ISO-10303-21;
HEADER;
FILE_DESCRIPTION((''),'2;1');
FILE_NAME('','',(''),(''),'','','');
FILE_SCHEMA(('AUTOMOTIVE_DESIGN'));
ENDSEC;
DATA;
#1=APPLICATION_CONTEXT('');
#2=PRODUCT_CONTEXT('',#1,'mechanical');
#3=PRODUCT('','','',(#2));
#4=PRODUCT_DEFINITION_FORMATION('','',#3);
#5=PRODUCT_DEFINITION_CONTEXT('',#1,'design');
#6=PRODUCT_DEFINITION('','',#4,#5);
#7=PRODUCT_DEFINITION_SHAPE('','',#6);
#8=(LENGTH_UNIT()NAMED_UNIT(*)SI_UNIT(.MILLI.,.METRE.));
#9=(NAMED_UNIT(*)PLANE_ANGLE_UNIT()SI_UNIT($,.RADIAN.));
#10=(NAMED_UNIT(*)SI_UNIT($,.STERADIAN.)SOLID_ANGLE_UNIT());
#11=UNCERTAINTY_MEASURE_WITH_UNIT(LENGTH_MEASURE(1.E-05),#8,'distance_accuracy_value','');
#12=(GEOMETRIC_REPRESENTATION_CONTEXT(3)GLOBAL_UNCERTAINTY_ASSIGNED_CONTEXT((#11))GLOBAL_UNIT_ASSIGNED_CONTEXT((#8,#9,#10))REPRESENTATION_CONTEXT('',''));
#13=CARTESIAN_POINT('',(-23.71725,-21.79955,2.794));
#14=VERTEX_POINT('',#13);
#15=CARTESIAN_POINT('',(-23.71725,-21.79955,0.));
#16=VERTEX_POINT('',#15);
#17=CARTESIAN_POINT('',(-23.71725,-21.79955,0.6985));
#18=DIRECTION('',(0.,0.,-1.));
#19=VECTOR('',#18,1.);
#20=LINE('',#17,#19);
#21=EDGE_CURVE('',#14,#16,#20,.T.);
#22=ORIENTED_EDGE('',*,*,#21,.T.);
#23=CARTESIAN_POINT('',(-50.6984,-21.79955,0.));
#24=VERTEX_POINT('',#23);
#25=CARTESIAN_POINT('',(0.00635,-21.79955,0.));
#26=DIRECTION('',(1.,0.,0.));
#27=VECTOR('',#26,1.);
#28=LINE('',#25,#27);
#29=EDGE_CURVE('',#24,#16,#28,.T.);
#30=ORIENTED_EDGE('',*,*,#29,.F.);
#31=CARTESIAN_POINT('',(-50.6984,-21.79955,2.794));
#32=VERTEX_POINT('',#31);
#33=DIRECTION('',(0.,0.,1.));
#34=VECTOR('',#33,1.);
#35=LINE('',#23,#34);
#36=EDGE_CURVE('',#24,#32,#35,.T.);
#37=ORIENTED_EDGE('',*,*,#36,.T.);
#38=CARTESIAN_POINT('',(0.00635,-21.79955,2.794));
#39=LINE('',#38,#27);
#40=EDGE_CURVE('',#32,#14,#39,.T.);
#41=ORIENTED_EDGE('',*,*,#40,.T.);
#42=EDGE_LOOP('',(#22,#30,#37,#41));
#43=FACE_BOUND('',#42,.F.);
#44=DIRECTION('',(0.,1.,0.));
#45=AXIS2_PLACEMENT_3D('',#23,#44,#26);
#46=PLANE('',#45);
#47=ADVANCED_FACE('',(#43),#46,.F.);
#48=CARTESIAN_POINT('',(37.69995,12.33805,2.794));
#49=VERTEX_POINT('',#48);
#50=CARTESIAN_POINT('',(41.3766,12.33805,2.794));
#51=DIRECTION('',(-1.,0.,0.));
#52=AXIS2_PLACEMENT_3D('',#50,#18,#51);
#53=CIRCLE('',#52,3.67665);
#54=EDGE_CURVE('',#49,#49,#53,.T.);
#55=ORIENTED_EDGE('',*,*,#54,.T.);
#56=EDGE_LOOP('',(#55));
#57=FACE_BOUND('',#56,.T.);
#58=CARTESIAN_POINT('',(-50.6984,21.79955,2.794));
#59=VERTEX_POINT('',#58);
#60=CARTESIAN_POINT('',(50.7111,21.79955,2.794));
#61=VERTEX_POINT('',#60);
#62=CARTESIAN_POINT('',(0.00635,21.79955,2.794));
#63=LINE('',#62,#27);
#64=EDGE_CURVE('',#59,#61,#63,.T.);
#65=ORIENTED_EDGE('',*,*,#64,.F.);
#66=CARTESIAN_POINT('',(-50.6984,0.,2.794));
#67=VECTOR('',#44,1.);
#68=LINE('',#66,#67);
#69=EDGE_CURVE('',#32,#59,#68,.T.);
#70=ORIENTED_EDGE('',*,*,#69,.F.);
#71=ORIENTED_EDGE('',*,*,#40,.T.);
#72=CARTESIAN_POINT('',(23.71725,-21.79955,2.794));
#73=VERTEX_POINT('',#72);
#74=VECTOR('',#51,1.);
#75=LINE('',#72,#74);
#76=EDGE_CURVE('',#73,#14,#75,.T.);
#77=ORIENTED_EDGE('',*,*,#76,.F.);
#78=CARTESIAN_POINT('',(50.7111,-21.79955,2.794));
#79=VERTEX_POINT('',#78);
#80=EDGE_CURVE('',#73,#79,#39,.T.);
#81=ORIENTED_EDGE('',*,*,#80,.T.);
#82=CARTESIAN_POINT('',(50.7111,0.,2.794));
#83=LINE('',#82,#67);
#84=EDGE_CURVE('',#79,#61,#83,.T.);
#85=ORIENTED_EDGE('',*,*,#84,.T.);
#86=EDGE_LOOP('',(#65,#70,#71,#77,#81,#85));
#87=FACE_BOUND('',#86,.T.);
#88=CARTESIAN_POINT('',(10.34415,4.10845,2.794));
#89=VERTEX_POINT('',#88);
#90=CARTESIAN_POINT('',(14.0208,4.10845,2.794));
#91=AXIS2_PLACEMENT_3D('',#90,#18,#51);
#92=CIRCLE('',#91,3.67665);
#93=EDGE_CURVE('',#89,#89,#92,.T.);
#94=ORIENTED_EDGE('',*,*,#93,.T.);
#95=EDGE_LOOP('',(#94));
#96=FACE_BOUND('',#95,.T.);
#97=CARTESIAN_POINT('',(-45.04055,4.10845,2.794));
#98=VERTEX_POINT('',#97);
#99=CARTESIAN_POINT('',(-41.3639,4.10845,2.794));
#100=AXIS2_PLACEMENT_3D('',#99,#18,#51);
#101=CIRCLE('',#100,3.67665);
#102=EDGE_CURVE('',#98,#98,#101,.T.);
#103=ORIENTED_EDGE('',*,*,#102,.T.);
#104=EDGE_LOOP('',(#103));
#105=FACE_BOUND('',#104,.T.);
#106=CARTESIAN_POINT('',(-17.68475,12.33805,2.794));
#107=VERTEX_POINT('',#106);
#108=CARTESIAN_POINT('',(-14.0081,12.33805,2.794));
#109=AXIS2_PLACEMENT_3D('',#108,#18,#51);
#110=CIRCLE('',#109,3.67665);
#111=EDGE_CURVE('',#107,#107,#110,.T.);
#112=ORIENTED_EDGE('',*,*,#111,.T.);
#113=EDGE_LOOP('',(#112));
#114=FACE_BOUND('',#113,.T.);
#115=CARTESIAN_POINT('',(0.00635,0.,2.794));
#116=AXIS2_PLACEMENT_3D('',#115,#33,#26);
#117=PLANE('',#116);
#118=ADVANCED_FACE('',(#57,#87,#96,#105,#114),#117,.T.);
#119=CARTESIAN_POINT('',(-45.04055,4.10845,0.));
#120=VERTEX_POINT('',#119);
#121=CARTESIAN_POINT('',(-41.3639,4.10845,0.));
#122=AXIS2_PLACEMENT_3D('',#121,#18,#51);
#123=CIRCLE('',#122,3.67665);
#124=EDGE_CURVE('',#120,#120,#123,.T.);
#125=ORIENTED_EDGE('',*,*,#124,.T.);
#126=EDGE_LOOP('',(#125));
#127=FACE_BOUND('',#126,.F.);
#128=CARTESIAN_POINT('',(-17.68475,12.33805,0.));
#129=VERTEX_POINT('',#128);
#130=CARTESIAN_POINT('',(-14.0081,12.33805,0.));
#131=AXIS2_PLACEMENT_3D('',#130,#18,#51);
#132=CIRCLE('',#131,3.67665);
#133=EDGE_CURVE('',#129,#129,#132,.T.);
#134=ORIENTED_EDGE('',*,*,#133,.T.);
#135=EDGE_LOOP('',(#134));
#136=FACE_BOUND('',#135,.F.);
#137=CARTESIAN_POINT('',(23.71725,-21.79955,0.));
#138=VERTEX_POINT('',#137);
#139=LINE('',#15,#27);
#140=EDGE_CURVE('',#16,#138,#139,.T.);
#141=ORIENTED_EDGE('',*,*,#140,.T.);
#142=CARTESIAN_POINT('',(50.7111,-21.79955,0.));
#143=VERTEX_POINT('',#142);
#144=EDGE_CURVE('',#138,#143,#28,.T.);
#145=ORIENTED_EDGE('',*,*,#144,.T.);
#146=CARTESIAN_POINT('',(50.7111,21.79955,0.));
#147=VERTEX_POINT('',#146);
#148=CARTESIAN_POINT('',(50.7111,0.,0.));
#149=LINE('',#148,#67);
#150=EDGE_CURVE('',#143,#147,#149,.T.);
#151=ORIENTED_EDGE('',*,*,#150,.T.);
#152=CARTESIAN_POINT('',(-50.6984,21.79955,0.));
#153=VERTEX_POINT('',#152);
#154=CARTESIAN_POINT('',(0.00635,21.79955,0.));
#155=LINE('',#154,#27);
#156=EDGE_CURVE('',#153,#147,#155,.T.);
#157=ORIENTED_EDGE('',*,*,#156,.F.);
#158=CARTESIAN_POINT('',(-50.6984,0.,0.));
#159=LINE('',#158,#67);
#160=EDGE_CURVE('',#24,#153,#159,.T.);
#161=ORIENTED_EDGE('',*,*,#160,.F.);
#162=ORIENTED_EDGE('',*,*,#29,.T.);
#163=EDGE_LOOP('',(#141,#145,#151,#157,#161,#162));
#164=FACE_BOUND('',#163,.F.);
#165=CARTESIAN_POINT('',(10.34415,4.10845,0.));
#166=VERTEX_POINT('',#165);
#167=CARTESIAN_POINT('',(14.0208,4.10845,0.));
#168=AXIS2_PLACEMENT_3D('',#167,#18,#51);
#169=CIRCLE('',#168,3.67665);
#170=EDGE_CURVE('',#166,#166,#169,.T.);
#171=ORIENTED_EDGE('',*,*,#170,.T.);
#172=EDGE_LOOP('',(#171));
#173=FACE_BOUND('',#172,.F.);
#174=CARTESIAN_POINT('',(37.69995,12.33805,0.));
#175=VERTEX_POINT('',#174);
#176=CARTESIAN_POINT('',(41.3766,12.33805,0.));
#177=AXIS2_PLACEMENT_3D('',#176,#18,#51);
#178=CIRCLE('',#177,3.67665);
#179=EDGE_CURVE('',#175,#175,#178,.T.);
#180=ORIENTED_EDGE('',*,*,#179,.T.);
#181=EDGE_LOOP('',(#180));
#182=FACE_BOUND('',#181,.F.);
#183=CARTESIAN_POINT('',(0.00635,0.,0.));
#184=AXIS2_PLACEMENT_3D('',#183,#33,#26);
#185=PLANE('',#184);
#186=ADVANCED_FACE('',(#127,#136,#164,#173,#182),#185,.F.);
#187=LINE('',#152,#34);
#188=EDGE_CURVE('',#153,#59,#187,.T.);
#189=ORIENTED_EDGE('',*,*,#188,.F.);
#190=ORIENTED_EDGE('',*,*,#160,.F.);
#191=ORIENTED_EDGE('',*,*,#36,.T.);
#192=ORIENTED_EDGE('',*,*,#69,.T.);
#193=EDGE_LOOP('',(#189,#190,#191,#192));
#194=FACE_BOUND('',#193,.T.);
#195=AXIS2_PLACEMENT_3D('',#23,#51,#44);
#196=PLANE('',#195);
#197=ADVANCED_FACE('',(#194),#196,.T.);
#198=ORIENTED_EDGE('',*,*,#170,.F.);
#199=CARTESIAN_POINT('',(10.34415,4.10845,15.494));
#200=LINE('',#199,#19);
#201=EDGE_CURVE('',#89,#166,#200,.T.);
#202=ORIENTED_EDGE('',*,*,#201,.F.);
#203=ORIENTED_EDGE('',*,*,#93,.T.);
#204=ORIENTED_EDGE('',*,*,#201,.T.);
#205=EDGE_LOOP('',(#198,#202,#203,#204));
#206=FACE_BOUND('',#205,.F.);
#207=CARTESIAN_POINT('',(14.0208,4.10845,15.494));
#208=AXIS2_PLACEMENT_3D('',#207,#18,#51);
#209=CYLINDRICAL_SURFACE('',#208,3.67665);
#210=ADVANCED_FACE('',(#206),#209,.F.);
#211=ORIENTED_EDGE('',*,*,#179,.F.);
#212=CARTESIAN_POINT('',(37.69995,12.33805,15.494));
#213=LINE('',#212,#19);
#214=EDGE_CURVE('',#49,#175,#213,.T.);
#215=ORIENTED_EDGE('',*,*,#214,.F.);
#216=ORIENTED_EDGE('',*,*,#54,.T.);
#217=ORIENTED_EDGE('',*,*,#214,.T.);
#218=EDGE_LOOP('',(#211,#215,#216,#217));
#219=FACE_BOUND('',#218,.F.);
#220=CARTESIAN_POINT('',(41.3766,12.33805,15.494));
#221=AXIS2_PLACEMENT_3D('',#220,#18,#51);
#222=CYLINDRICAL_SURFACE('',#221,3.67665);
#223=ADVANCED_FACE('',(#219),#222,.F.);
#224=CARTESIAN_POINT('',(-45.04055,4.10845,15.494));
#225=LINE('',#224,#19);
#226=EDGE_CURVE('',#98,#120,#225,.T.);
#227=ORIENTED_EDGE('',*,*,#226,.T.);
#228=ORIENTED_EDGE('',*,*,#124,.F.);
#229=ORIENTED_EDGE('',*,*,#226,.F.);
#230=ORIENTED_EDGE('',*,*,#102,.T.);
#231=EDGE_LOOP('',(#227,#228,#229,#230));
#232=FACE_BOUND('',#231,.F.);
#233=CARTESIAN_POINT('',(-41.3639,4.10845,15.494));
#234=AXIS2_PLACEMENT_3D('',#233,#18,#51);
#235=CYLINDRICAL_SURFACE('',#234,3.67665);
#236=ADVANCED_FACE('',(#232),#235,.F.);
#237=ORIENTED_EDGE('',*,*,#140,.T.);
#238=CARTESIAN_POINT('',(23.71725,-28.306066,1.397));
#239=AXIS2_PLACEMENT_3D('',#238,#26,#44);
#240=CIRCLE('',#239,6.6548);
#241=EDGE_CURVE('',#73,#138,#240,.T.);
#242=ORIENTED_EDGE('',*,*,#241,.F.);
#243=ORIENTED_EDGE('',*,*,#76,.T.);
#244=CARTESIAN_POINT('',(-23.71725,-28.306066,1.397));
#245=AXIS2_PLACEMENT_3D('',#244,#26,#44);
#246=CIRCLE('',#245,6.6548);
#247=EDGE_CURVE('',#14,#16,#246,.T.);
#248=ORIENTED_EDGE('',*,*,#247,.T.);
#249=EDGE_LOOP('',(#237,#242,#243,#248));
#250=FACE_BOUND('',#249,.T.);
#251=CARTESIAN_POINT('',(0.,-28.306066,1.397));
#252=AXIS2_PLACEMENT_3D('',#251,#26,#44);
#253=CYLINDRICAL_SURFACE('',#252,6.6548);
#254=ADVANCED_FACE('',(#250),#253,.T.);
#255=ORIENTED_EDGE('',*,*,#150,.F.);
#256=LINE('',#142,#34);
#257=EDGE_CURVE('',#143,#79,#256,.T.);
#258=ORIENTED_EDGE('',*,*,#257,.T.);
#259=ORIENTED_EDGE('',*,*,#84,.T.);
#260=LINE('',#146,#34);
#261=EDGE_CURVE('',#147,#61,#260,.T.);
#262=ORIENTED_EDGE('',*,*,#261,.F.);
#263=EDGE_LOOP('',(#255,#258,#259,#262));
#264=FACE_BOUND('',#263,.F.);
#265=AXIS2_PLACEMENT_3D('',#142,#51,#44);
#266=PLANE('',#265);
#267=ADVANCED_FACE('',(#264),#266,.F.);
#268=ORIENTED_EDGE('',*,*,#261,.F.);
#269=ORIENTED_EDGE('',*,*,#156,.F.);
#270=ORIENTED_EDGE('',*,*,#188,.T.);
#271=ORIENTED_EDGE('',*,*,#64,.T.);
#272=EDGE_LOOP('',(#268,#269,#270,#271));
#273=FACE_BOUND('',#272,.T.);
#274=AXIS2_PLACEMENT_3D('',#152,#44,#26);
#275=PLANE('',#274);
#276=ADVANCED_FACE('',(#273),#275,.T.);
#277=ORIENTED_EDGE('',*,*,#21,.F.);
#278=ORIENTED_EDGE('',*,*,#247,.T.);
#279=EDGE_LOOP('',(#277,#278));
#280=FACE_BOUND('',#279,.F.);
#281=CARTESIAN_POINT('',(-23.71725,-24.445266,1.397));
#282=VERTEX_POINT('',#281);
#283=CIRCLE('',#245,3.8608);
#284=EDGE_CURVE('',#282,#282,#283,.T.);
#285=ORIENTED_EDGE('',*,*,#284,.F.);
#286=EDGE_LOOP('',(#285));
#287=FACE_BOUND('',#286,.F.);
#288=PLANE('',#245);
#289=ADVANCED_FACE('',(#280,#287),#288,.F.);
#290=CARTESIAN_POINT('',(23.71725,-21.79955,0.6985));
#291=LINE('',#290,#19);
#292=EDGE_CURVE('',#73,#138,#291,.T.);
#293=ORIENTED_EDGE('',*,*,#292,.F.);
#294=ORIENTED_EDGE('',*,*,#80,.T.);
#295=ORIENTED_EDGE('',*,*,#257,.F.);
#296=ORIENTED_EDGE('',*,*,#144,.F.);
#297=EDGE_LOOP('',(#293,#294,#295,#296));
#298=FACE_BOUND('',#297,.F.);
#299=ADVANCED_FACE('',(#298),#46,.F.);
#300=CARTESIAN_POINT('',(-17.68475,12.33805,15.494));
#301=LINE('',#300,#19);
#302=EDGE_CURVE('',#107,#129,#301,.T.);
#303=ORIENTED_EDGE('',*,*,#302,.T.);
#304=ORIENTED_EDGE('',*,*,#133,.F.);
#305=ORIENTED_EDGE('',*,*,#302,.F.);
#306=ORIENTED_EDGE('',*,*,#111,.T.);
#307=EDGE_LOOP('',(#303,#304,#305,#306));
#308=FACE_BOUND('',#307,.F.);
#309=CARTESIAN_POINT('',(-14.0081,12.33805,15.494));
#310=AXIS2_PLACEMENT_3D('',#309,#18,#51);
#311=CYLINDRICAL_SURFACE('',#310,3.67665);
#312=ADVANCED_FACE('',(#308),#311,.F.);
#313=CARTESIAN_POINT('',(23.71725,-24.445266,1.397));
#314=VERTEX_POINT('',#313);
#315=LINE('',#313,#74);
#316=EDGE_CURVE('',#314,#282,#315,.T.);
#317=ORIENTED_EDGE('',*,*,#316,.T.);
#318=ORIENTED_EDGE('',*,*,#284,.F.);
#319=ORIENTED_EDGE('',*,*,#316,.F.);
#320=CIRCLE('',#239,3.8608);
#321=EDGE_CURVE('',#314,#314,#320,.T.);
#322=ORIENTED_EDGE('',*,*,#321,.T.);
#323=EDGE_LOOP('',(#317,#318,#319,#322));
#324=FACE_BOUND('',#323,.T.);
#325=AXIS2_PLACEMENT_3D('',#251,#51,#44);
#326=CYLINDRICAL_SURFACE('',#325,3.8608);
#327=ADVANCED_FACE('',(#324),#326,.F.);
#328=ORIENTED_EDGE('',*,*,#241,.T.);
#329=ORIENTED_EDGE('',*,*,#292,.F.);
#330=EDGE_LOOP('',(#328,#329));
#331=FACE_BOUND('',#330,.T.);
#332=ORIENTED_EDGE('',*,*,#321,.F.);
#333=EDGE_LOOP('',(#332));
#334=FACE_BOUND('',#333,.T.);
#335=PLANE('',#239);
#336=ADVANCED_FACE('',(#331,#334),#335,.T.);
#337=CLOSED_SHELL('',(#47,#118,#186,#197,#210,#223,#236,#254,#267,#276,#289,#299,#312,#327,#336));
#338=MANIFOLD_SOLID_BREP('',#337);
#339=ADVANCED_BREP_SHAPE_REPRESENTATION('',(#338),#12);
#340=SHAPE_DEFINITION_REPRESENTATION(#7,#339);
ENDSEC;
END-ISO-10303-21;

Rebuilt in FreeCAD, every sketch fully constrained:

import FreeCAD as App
import Part
import Sketcher
from FreeCAD import Vector
Q = App.Units.Quantity


def add_polygon(sketch, points):
    """Adds a closed chain of lines whose ends are joined by coincident constraints."""
    first, n = sketch.GeometryCount, len(points)
    for a, b in zip(points, points[1:] + points[:1]):
        sketch.addGeometry(Part.LineSegment(App.Vector(*a, 0), App.Vector(*b, 0)), False)
    for i in range(n):
        sketch.addConstraint(Sketcher.Constraint("Coincident", first + i, 2, first + (i + 1) % n, 1))

doc = App.newDocument("Part")
params = doc.addObject("Spreadsheet::Sheet", "Params")
for row, (alias, value) in enumerate([
    ("pad1_length", "0.11 in"),
    ("sketch2_diameter", "0.524 in"),
    ("sketch2_diameter2", "0.304 in"),
    ("pad2_length", "23.71725 mm"),
    ("pad2_length2", "23.71725 mm"),
    ("hole_diameter", "0.2895 in"),
    ("hole_depth", "0.5 in"),
], start=1):
    params.set(f"A{row}", alias)
    params.set(f"B{row}", "=" + value)
    params.setAlias(f"B{row}", alias)

body = doc.addObject("PartDesign::Body", "Body")

sketch1 = body.newObject("Sketcher::SketchObject", "Sketch")
sketch1.AttachmentSupport = (doc.getObject("XY_Plane"), [""])
sketch1.MapMode = "FlatFace"
add_polygon(sketch1, [(-51, 22), (-51, -22), (51, -22), (51, 22)])
sketch1.addConstraint([
    Sketcher.Constraint("Vertical", 0),
    Sketcher.Constraint("Horizontal", 1),
    Sketcher.Constraint("Vertical", 2),
    Sketcher.Constraint("Horizontal", 3),
    Sketcher.Constraint("DistanceX", 1, 1, 1, 2, Q("3.9925 in")),
    Sketcher.Constraint("DistanceY", 0, 2, 0, 1, Q("1.7165 in")),
    Sketcher.Constraint("DistanceX", 0, 2, -1, 1, Q("1.996 in")),
    Sketcher.Constraint("DistanceY", 0, 2, -1, 1, 21.79955),
])
pad1 = body.newObject("PartDesign::Pad", "Pad")
pad1.Profile = sketch1
pad1.setExpression("Length", "Params.pad1_length")

sketch2 = body.newObject("Sketcher::SketchObject", "Sketch001")
sketch2.AttachmentSupport = (doc.getObject("YZ_Plane"), [""])
sketch2.MapMode = "FlatFace"
sketch2.addGeometry([
    Part.Circle(Vector(-28.3, 1.4, 0), Vector(0, 0, 1), 6.7),
    Part.Circle(Vector(-28.3, 1.4, 0), Vector(0, 0, 1), 3.9),
], False)
sketch2.addConstraint([
    Sketcher.Constraint("Coincident", 1, 3, 0, 3),
    Sketcher.Constraint("Diameter", 0, Q("0.524 in")),
    Sketcher.Constraint("Diameter", 1, Q("0.304 in")),
    Sketcher.Constraint("DistanceY", -1, 1, 0, 3, Q("0.055 in")),
    Sketcher.Constraint("DistanceX", 0, 3, -1, 1, 28.306066),
])
sketch2.setExpression("Constraints[1]", "Params.sketch2_diameter")
sketch2.setExpression("Constraints[2]", "Params.sketch2_diameter2")
pad2 = body.newObject("PartDesign::Pad", "Pad001")
pad2.Profile = sketch2
pad2.Type = "TwoLengths"
pad2.setExpression("Length", "Params.pad2_length")
pad2.setExpression("Length2", "Params.pad2_length2")

sketch3 = body.newObject("Sketcher::SketchObject", "Sketch002")
sketch3.AttachmentSupport = (doc.getObject("XY_Plane"), [""])
sketch3.MapMode = "FlatFace"
sketch3.AttachmentOffset = App.Placement(Vector(0, 0, 0.11 * 25.4), App.Rotation())
sketch3.addGeometry([
    Part.Circle(Vector(14, 4.1, 0), Vector(0, 0, 1), 3.7),
    Part.Circle(Vector(-14, 12.3, 0), Vector(0, 0, 1), 3.7),
    Part.Circle(Vector(-41.4, 4.1, 0), Vector(0, 0, 1), 3.7),
    Part.Circle(Vector(41.4, 12.3, 0), Vector(0, 0, 1), 3.7),
], False)
sketch3.addConstraint([
    Sketcher.Constraint("Equal", 0, 1),
    Sketcher.Constraint("Equal", 1, 2),
    Sketcher.Constraint("Equal", 2, 3),
    Sketcher.Constraint("Horizontal", 0, 3, 2, 3),
    Sketcher.Constraint("Horizontal", 1, 3, 3, 3),
    Sketcher.Constraint("Diameter", 0, Q("0.2895 in")),
    Sketcher.Constraint("DistanceX", -1, 1, 0, 3, Q("0.552 in")),
    Sketcher.Constraint("DistanceX", -1, 1, 3, 3, Q("1.629 in")),
    Sketcher.Constraint("DistanceY", 0, 3, 1, 3, Q("0.324 in")),
    Sketcher.Constraint("DistanceX", 2, 3, 1, 3, Q("1.077 in")),
    Sketcher.Constraint("DistanceX", 1, 3, -1, 1, Q("0.5515 in")),
    Sketcher.Constraint("DistanceY", -1, 1, 0, 3, 4.10845),
])
doc.recompute()
hole = body.newObject("PartDesign::Hole", "Hole")
hole.Profile = sketch3
hole.ThreadType = "None"
hole.setExpression("Diameter", "Params.hole_diameter")
hole.DepthType = "Dimension"
hole.setExpression("Depth", "Params.hole_depth")
hole.DrillPoint = "Flat"

doc.recompute()
